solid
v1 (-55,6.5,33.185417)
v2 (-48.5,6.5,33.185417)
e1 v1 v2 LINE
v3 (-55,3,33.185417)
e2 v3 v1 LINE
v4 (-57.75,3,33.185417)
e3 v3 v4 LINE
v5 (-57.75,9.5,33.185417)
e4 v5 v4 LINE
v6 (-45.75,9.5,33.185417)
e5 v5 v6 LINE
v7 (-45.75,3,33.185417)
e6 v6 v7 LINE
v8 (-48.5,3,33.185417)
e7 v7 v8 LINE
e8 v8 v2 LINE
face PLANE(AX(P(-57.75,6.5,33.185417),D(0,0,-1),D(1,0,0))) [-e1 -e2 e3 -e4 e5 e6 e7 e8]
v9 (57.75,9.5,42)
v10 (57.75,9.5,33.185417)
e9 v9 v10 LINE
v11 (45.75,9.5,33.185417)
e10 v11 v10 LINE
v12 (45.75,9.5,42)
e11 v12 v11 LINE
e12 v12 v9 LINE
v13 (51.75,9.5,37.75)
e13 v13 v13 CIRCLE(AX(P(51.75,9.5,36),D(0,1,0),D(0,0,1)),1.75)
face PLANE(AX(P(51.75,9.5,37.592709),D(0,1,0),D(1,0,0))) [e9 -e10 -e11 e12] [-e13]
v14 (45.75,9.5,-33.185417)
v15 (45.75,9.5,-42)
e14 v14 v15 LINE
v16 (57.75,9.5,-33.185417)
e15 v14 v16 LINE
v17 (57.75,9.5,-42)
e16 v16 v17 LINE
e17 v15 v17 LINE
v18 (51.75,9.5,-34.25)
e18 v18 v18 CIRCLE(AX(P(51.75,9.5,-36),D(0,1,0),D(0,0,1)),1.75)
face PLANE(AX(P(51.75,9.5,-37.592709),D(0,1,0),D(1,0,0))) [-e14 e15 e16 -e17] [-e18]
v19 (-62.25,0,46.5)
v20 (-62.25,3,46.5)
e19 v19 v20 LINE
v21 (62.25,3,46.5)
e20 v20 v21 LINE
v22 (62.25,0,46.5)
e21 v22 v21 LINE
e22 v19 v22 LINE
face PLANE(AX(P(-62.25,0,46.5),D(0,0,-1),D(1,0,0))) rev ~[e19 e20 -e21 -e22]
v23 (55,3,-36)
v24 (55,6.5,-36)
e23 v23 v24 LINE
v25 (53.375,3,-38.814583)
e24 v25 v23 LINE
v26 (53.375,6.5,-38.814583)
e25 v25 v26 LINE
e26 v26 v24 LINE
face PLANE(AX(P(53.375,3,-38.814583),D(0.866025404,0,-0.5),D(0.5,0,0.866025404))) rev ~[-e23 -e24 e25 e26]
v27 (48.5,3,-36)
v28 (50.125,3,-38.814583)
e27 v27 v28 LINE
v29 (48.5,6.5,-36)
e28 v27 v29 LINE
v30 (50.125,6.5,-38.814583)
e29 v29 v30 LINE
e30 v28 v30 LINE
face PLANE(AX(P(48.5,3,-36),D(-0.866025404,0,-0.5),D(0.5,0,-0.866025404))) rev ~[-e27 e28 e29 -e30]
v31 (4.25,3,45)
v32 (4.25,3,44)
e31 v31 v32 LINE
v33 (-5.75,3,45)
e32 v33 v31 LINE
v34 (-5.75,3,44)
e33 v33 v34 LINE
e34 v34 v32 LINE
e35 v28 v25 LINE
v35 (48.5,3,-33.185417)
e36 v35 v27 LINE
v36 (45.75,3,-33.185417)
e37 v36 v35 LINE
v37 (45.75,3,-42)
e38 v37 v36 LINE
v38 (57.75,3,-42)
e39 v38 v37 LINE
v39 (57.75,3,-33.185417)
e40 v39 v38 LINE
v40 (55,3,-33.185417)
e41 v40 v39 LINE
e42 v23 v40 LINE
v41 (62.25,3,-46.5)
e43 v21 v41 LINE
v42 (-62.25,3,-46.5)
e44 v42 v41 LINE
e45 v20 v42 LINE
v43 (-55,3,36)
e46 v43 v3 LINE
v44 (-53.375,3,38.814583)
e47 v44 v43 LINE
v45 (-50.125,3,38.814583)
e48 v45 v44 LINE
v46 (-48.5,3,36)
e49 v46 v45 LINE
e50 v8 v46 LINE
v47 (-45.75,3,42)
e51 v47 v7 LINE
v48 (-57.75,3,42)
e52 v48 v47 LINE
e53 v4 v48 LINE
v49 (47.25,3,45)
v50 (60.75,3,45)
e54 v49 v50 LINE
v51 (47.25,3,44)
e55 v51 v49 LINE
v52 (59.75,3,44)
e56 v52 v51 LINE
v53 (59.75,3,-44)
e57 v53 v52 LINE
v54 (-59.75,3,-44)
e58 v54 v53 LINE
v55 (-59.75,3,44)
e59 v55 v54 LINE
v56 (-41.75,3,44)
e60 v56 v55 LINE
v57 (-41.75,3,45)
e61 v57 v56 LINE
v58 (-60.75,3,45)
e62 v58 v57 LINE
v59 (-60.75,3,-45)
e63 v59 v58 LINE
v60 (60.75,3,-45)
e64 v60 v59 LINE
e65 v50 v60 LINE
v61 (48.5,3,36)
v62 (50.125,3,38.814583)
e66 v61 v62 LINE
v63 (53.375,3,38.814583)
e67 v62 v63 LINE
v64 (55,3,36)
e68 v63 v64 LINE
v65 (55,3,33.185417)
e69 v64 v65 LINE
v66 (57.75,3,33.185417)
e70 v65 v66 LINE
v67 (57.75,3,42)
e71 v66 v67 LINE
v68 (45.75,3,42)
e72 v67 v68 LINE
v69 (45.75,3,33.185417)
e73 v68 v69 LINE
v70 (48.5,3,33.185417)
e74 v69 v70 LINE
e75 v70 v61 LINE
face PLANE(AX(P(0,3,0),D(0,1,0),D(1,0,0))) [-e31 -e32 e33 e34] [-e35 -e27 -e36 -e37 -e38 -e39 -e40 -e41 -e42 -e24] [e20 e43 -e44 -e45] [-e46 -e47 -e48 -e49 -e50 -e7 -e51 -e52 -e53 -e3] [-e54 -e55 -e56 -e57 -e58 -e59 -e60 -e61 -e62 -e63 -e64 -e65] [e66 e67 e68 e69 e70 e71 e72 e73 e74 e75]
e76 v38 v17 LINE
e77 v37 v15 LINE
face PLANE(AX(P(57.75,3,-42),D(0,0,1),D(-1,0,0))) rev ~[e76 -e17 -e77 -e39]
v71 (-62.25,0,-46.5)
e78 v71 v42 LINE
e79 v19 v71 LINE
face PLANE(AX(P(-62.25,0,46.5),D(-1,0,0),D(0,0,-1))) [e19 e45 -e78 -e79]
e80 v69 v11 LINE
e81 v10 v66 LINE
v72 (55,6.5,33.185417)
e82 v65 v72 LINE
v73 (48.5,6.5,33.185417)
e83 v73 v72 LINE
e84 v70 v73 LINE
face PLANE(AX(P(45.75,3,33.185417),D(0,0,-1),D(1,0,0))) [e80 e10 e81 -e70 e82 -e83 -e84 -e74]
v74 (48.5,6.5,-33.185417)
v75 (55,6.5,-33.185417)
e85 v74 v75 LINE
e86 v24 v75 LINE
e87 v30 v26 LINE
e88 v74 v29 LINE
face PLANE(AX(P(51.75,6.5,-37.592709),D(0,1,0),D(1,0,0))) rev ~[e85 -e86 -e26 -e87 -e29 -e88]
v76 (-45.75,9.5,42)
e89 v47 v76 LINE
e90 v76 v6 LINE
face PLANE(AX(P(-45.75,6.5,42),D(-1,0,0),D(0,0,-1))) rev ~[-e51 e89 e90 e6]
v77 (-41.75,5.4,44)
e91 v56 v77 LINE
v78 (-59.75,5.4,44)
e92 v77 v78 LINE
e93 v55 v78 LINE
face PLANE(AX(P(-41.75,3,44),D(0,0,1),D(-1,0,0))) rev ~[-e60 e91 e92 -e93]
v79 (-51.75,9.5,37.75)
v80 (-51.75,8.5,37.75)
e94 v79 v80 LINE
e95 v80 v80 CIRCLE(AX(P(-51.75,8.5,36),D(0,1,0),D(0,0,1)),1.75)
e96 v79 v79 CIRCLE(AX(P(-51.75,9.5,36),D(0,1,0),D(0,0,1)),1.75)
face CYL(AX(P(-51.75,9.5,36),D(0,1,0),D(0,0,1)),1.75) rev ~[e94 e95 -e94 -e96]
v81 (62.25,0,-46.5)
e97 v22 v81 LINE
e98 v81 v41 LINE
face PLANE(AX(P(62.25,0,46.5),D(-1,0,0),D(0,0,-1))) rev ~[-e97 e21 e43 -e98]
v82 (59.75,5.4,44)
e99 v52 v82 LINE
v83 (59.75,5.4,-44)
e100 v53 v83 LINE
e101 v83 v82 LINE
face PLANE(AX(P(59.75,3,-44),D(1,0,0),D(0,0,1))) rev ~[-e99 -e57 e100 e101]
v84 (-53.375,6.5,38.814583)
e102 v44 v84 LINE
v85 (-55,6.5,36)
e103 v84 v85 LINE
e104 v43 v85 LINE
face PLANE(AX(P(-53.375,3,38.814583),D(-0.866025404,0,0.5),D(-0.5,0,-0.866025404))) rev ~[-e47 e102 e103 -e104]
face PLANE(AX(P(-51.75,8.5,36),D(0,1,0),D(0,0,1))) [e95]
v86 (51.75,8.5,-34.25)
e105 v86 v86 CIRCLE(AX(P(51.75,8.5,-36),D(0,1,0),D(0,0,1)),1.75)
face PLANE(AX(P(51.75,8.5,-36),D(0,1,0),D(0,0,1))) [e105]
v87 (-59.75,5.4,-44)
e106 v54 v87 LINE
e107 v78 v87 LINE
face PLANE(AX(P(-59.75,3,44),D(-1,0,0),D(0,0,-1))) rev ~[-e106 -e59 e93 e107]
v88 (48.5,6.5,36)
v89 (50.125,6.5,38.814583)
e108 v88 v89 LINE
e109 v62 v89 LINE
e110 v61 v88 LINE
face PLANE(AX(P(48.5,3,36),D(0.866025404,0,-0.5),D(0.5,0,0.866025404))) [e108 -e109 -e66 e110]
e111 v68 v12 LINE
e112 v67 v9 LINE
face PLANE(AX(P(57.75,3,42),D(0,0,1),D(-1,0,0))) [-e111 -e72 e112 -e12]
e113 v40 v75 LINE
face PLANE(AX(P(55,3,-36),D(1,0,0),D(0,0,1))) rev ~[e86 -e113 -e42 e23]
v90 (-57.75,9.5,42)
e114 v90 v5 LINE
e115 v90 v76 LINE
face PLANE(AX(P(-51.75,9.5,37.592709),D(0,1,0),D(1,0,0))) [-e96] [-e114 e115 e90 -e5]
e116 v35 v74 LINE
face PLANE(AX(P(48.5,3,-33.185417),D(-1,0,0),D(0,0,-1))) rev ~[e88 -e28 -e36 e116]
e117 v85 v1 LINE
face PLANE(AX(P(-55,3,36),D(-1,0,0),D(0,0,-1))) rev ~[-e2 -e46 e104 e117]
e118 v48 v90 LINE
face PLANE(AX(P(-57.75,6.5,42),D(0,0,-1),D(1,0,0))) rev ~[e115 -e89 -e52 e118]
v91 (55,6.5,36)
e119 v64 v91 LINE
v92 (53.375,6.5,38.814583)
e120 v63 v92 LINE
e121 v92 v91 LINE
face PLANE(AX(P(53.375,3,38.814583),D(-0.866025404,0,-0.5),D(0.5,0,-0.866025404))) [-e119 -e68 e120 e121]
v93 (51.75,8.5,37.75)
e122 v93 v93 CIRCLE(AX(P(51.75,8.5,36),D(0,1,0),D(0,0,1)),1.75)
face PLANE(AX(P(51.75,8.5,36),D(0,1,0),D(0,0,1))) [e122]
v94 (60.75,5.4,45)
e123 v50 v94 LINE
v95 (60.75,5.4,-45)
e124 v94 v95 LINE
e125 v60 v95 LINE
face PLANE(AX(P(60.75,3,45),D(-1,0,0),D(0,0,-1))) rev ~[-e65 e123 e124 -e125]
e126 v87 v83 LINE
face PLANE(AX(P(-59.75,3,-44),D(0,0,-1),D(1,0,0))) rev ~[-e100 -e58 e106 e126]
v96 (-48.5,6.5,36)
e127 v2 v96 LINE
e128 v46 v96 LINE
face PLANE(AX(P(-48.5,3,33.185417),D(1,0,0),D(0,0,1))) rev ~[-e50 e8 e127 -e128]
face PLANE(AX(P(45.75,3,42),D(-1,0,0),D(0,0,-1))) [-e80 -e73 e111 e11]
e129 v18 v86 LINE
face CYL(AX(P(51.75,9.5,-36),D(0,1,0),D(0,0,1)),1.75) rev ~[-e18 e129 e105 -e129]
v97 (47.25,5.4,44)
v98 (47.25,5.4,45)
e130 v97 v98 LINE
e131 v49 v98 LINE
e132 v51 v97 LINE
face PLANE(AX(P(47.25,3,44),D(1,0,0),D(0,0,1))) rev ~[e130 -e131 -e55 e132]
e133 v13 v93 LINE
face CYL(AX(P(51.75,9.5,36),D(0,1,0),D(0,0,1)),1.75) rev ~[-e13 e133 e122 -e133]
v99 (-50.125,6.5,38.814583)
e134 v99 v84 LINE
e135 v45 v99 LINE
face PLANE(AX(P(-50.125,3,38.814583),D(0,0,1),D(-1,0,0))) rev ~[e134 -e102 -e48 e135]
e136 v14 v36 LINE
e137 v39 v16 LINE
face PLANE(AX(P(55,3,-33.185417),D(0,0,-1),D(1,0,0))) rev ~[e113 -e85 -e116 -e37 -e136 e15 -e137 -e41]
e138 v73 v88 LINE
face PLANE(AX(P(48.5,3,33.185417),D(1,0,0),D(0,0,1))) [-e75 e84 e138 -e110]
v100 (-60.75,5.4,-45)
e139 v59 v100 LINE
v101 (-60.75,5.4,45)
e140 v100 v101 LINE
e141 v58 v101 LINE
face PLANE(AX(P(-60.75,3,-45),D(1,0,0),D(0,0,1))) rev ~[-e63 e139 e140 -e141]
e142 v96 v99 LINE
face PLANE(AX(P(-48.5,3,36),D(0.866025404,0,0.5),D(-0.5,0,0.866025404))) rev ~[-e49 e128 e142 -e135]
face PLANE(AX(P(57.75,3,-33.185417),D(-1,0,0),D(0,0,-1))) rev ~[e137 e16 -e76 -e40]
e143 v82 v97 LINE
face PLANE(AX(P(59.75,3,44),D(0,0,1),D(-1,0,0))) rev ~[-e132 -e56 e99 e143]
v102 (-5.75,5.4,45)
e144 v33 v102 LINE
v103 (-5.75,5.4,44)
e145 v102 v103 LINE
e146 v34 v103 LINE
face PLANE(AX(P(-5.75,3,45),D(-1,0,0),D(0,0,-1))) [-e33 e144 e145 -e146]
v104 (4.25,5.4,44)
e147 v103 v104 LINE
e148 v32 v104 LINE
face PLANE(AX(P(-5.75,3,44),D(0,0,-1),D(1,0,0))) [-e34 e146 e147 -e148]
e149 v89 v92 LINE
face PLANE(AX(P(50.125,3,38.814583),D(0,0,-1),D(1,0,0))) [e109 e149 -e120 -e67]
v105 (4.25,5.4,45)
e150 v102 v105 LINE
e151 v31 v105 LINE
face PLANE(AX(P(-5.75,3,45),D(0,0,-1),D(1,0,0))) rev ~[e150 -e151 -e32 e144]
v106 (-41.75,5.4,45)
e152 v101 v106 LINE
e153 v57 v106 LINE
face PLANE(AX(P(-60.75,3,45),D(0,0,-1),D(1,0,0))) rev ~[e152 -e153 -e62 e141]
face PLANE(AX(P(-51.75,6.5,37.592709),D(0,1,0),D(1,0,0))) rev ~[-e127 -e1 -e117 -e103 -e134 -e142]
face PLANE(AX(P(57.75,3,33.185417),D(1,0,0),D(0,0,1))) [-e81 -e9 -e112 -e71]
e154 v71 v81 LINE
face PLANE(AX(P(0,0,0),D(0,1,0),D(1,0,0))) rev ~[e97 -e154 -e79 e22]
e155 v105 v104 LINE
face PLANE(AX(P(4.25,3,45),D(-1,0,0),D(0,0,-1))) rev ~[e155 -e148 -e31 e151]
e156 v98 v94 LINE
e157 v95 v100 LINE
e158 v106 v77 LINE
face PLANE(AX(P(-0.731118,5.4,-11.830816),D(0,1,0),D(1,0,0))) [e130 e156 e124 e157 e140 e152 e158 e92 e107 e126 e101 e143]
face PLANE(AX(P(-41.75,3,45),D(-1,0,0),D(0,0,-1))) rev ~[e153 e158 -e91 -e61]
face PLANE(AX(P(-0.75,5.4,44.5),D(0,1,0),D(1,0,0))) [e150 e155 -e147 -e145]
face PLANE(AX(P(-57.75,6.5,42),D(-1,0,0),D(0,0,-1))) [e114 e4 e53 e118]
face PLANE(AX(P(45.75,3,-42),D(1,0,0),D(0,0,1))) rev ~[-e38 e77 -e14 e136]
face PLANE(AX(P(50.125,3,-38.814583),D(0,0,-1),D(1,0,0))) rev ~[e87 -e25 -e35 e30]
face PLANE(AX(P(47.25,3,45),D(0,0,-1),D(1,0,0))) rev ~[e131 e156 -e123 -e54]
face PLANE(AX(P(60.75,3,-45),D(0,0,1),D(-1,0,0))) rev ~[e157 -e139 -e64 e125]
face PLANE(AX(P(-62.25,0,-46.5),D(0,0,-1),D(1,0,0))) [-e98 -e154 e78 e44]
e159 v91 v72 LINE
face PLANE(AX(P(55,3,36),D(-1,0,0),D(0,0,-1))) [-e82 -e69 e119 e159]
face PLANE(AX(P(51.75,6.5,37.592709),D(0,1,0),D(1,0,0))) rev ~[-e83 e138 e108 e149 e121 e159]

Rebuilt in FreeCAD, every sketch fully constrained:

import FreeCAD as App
import Part
import Sketcher
from FreeCAD import Vector
Q = App.Units.Quantity


def add_polygon(sketch, points):
    """Adds a closed chain of lines whose ends are joined by coincident constraints."""
    first, n = sketch.GeometryCount, len(points)
    for a, b in zip(points, points[1:] + points[:1]):
        sketch.addGeometry(Part.LineSegment(App.Vector(*a, 0), App.Vector(*b, 0)), False)
    for i in range(n):
        sketch.addConstraint(Sketcher.Constraint("Coincident", first + i, 2, first + (i + 1) % n, 1))

doc = App.newDocument("Part")
body = doc.addObject("PartDesign::Body", "Body")

sketch1 = body.newObject("Sketcher::SketchObject", "Sketch")
sketch1.AttachmentSupport = (doc.getObject("XZ_Plane"), [""])
sketch1.MapMode = "FlatFace"
add_polygon(sketch1, [(-62.25, -46.5), (-62.25, 46.5), (62.25, 46.5), (62.25, -46.5)])
sketch1.addConstraint([
    Sketcher.Constraint("Vertical", 0),
    Sketcher.Constraint("Horizontal", 1),
    Sketcher.Constraint("Vertical", 2),
    Sketcher.Constraint("Horizontal", 3),
    Sketcher.Constraint("Symmetric", 0, 2, 2, 2, -1, 1),
    Sketcher.Constraint("DistanceY", 0, 1, 0, 2, 93.0),
    Sketcher.Constraint("DistanceX", 1, 1, 1, 2, 124.5),
])
pad1 = body.newObject("PartDesign::Pad", "Pad")
pad1.Profile = sketch1
pad1.Length = 3
pad1.Reversed = True

sketch2 = body.newObject("Sketcher::SketchObject", "Sketch001")
sketch2.AttachmentSupport = (doc.getObject("XZ_Plane"), [""])
sketch2.MapMode = "FlatFace"
sketch2.AttachmentOffset = App.Placement(Vector(0, 0, -3), App.Rotation())
add_polygon(sketch2, [(-41.75, 44), (-59.75, 44), (-59.75, -44), (59.75, -44), (59.75, 44), (47.25, 44), (47.25, 45), (60.75, 45), (60.75, -45), (-60.75, -45), (-60.75, 45), (-41.75, 45)])
add_polygon(sketch2, [(-5.75, 44), (-5.75, 45), (4.25, 45), (4.25, 44)])
sketch2.addConstraint([
    Sketcher.Constraint("Horizontal", 0),
    Sketcher.Constraint("Vertical", 1),
    Sketcher.Constraint("Horizontal", 2),
    Sketcher.Constraint("Vertical", 3),
    Sketcher.Constraint("Horizontal", 4),
    Sketcher.Constraint("Vertical", 5),
    Sketcher.Constraint("Horizontal", 6),
    Sketcher.Constraint("Vertical", 7),
    Sketcher.Constraint("Horizontal", 8),
    Sketcher.Constraint("Vertical", 9),
    Sketcher.Constraint("Horizontal", 10),
    Sketcher.Constraint("Vertical", 11),
    Sketcher.Constraint("Vertical", 12),
    Sketcher.Constraint("Horizontal", 13),
    Sketcher.Constraint("Vertical", 14),
    Sketcher.Constraint("Horizontal", 15),
    Sketcher.Constraint("Symmetric", 0, 2, 2, 2, -1, 1),
    Sketcher.Constraint("Symmetric", 6, 2, 8, 2, -1, 1),
    Sketcher.Constraint("Horizontal", 0, 2, 3, 2),
    Sketcher.Constraint("Horizontal", 6, 2, 9, 2),
    Sketcher.Constraint("Horizontal", 10, 2, 12, 2),
    Sketcher.Constraint("Horizontal", 11, 2, 14, 2),
    Sketcher.Constraint("DistanceX", 0, 2, 0, 1, 18.0),
    Sketcher.Constraint("DistanceX", 10, 1, 10, 2, 19.0),
    Sketcher.Constraint("DistanceX", 13, 1, 13, 2, 10.0),
    Sketcher.Constraint("DistanceY", 1, 2, 1, 1, 88.0),
    Sketcher.Constraint("DistanceY", 5, 1, 5, 2, 1.0),
    Sketcher.Constraint("DistanceX", 2, 1, 2, 2, 119.5),
    Sketcher.Constraint("DistanceX", 4, 2, 4, 1, 12.5),
    Sketcher.Constraint("DistanceX", 10, 2, 12, 2, 36.0),
])
pad2 = body.newObject("PartDesign::Pad", "Pad001")
pad2.Profile = sketch2
pad2.Length = 2.4
pad2.Reversed = True

sketch3 = body.newObject("Sketcher::SketchObject", "Sketch002")
sketch3.AttachmentSupport = (doc.getObject("XZ_Plane"), [""])
sketch3.MapMode = "FlatFace"
sketch3.AttachmentOffset = App.Placement(Vector(0, 0, -3), App.Rotation())
add_polygon(sketch3, [(-55, 36), (-55, 33.185417), (-57.75, 33.185417), (-57.75, 42), (-45.75, 42), (-45.75, 33.185417), (-48.5, 33.185417), (-48.5, 36), (-50.125, 38.814583), (-53.375, 38.814583)])
add_polygon(sketch3, [(55, -36), (55, -33.185417), (57.75, -33.185417), (57.75, -42), (45.75, -42), (45.75, -33.185417), (48.5, -33.185417), (48.5, -36), (50.125, -38.814583), (53.375, -38.814583)])
add_polygon(sketch3, [(55, 33.185417), (55, 36), (53.375, 38.814583), (50.125, 38.814583), (48.5, 36), (48.5, 33.185417), (45.75, 33.185417), (45.75, 42), (57.75, 42), (57.75, 33.185417)])
sketch3.addConstraint([
    Sketcher.Constraint("Vertical", 0),
    Sketcher.Constraint("Horizontal", 1),
    Sketcher.Constraint("Vertical", 2),
    Sketcher.Constraint("Horizontal", 3),
    Sketcher.Constraint("Vertical", 4),
    Sketcher.Constraint("Horizontal", 5),
    Sketcher.Constraint("Vertical", 6),
    Sketcher.Constraint("Horizontal", 8),
    Sketcher.Constraint("Vertical", 10),
    Sketcher.Constraint("Horizontal", 11),
    Sketcher.Constraint("Vertical", 12),
    Sketcher.Constraint("Horizontal", 13),
    Sketcher.Constraint("Vertical", 14),
    Sketcher.Constraint("Horizontal", 15),
    Sketcher.Constraint("Vertical", 16),
    Sketcher.Constraint("Horizontal", 18),
    Sketcher.Constraint("Vertical", 20),
    Sketcher.Constraint("Horizontal", 22),
    Sketcher.Constraint("Vertical", 24),
    Sketcher.Constraint("Horizontal", 25),
    Sketcher.Constraint("Vertical", 26),
    Sketcher.Constraint("Horizontal", 27),
    Sketcher.Constraint("Vertical", 28),
    Sketcher.Constraint("Horizontal", 29),
    Sketcher.Constraint("Symmetric", 0, 2, 10, 2, -1, 1),
    Sketcher.Constraint("Symmetric", 2, 2, 12, 2, -1, 1),
    Sketcher.Constraint("Symmetric", 4, 2, 14, 2, -1, 1),
    Sketcher.Constraint("Symmetric", 6, 2, 16, 2, -1, 1),
    Sketcher.Constraint("Symmetric", 7, 2, 17, 2, -1, 1),
    Sketcher.Constraint("Symmetric", 9, 2, 20, 2, -2),
    Sketcher.Constraint("Symmetric", 8, 2, 21, 2, -2),
    Sketcher.Constraint("Symmetric", 6, 2, 23, 2, -2),
    Sketcher.Constraint("Symmetric", 4, 2, 25, 2, -2),
    Sketcher.Constraint("Symmetric", 2, 2, 27, 2, -2),
    Sketcher.Constraint("Parallel", 9, 19),
    Sketcher.Constraint("Parallel", 17, 21),
    Sketcher.Constraint("Parallel", 19, 23),
    Sketcher.Constraint("Horizontal", 1, 2, 4, 2),
    Sketcher.Constraint("Horizontal", 6, 2, 9, 2),
    Sketcher.Constraint("Horizontal", 16, 2, 19, 2),
    Sketcher.Constraint("Horizontal", 25, 2, 28, 2),
    Sketcher.Constraint("Equal", 1, 5),
    Sketcher.Constraint("DistanceX", 3, 1, 3, 2, 12.0),
    Sketcher.Constraint("Angle", 7, Q("120 deg")),
    Sketcher.Constraint("DistanceX", 0, 2, -1, 1, 55.0),
    Sketcher.Constraint("DistanceY", -1, 1, 2, 2, 42.0),
    Sketcher.Constraint("DistanceY", -1, 1, 6, 2, 36.0),
    Sketcher.Constraint("DistanceY", 10, 2, 7, 2, 72.0),
    Sketcher.Constraint("DistanceX", 1, 2, 1, 1, 2.75),
    Sketcher.Constraint("DistanceX", 8, 2, 8, 1, 3.25),
])
pad3 = body.newObject("PartDesign::Pad", "Pad002")
pad3.Profile = sketch3
pad3.Length = 3.5
pad3.Reversed = True

sketch4 = body.newObject("Sketcher::SketchObject", "Sketch003")
sketch4.AttachmentSupport = (doc.getObject("XZ_Plane"), [""])
sketch4.MapMode = "FlatFace"
sketch4.AttachmentOffset = App.Placement(Vector(0, 0, -6.5), App.Rotation())
add_polygon(sketch4, [(-57.75, 33.185417), (-57.75, 42), (-45.75, 42), (-45.75, 33.185417)])
add_polygon(sketch4, [(45.75, 33.185417), (45.75, 42), (57.75, 42), (57.75, 33.185417)])
add_polygon(sketch4, [(45.75, -42), (45.75, -33.185417), (57.75, -33.185417), (57.75, -42)])
sketch4.addConstraint([
    Sketcher.Constraint("Vertical", 0),
    Sketcher.Constraint("Horizontal", 1),
    Sketcher.Constraint("Vertical", 2),
    Sketcher.Constraint("Horizontal", 3),
    Sketcher.Constraint("Vertical", 4),
    Sketcher.Constraint("Horizontal", 5),
    Sketcher.Constraint("Vertical", 6),
    Sketcher.Constraint("Horizontal", 7),
    Sketcher.Constraint("Vertical", 8),
    Sketcher.Constraint("Horizontal", 9),
    Sketcher.Constraint("Vertical", 10),
    Sketcher.Constraint("Horizontal", 11),
    Sketcher.Constraint("Symmetric", 2, 2, 8, 2, -1, 1),
    Sketcher.Constraint("Symmetric", 0, 2, 10, 2, -1, 1),
    Sketcher.Constraint("Symmetric", 1, 2, 4, 2, -2),
    Sketcher.Constraint("Symmetric", 3, 2, 6, 2, -2),
    Sketcher.Constraint("DistanceX", 1, 1, 1, 2, 12.0),
    Sketcher.Constraint("DistanceY", -1, 1, 0, 2, 42.0),
    Sketcher.Constraint("DistanceX", 1, 2, 4, 2, 91.5),
    Sketcher.Constraint("DistanceY", 0, 1, 0, 2, 8.814583),
])
pad4 = body.newObject("PartDesign::Pad", "Pad003")
pad4.Profile = sketch4
pad4.Length = 3
pad4.Reversed = True

sketch5 = body.newObject("Sketcher::SketchObject", "Sketch004")
sketch5.AttachmentSupport = (doc.getObject("XZ_Plane"), [""])
sketch5.MapMode = "FlatFace"
sketch5.AttachmentOffset = App.Placement(Vector(0, 0, -9.5), App.Rotation())
sketch5.addGeometry([
    Part.Circle(Vector(-51.75, 36, 0), Vector(0, 0, 1), 1.75),
    Part.Circle(Vector(51.75, 36, 0), Vector(0, 0, 1), 1.75),
    Part.Circle(Vector(51.75, -36, 0), Vector(0, 0, 1), 1.75),
], False)
sketch5.addConstraint([
    Sketcher.Constraint("Equal", 0, 1),
    Sketcher.Constraint("Equal", 1, 2),
    Sketcher.Constraint("Symmetric", 0, 3, 2, 3, -1, 1),
    Sketcher.Constraint("Symmetric", 0, 3, 1, 3, -2),
    Sketcher.Constraint("Diameter", 0, 3.5),
    Sketcher.Constraint("DistanceY", -1, 1, 0, 3, 36.0),
    Sketcher.Constraint("DistanceX", 0, 3, 1, 3, 103.5),
])
pocket1 = body.newObject("PartDesign::Pocket", "Pocket")
pocket1.Profile = sketch5
pocket1.Length = 1
pocket1.Reversed = True

doc.recompute()
